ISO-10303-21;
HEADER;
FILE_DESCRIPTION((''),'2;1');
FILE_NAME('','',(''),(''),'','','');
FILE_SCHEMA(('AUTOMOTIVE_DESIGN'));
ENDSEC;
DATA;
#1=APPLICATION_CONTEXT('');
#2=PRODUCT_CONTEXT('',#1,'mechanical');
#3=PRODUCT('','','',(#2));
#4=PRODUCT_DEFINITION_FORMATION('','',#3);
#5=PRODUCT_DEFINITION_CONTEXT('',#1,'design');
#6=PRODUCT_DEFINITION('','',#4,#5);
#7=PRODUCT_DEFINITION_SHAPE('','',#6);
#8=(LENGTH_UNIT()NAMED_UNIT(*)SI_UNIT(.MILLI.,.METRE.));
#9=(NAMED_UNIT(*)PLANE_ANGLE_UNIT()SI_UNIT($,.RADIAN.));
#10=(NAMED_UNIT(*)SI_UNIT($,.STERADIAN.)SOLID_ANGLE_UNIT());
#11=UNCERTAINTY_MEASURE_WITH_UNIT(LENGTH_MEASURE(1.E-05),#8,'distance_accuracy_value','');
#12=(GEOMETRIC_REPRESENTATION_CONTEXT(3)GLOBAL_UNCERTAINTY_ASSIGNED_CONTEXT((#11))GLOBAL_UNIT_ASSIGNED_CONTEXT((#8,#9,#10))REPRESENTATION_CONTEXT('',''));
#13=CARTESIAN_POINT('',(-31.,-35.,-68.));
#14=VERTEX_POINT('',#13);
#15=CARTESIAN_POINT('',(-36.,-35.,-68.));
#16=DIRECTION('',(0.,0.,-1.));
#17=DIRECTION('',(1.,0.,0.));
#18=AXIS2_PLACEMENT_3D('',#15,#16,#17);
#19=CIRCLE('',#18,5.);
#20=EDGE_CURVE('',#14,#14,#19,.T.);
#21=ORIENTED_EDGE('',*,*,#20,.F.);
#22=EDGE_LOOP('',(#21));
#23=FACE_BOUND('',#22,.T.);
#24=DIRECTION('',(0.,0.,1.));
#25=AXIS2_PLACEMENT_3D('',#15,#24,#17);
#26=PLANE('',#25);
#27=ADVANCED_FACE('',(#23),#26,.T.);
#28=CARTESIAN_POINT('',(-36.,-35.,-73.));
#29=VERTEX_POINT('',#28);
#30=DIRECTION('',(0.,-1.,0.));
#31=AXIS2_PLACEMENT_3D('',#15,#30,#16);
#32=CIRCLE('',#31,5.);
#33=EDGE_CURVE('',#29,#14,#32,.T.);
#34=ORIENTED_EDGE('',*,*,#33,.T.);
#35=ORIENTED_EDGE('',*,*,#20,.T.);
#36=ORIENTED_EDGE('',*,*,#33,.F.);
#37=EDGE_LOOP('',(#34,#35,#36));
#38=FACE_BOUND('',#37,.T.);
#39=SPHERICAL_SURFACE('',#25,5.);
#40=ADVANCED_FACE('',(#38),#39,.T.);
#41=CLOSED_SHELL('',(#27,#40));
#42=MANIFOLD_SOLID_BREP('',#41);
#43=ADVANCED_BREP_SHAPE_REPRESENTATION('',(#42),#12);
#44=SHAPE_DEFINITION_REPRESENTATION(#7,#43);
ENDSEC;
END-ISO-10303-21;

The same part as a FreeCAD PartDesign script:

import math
import FreeCAD as App
import Part
import Sketcher

V = App.Vector
Q = App.Units.Quantity


def add_polygon(sketch, points):
    """Adds a closed chain of lines whose ends are joined by coincident constraints."""
    first, n = sketch.GeometryCount, len(points)
    for a, b in zip(points, points[1:] + points[:1]):
        sketch.addGeometry(Part.LineSegment(App.Vector(*a, 0), App.Vector(*b, 0)), False)
    for i in range(n):
        sketch.addConstraint(Sketcher.Constraint("Coincident", first + i, 2, first + (i + 1) % n, 1))

doc = App.newDocument("Part")
body = doc.addObject("PartDesign::Body", "Body")

sketch1 = doc.addObject("Sketcher::SketchObject", "Sketch")
body.addObject(sketch1)
sketch1.AttachmentSupport = (doc.XY_Plane, [""])
sketch1.MapMode = "FlatFace"
add_polygon(sketch1, [(-5, 5), (-5, -5), (5, -5), (5, 5)])
sketch1.addConstraint([
    Sketcher.Constraint("Vertical", 0),
    Sketcher.Constraint("Horizontal", 1),
    Sketcher.Constraint("Vertical", 2),
    Sketcher.Constraint("Horizontal", 3),
    Sketcher.Constraint("Symmetric", 0, 2, 2, 2, -1, 1),
    Sketcher.Constraint("Equal", 3, 0),
    Sketcher.Constraint("DistanceX", 1, 1, 1, 2, Q("10 mm")),
])
pad1 = doc.addObject("PartDesign::Pad", "Pad")
body.addObject(pad1)
pad1.Profile = sketch1
pad1.Length = 10
body2 = doc.addObject("PartDesign::Body", "Body001")

sketch2 = doc.addObject("Sketcher::SketchObject", "Sketch001")
body2.addObject(sketch2)
sketch2.AttachmentSupport = (doc.getObject("XZ_Plane001"), [""])
sketch2.MapMode = "FlatFace"
sketch2.addGeometry([
    Part.ArcOfCircle(Part.Circle(V(0, 0, 0), V(0, 0, 1), 5), math.radians(-90), math.radians(90)),
    Part.LineSegment(V(0, 5, 0), V(0, -5, 0)),
], False)
sketch2.addConstraint([
    Sketcher.Constraint("Coincident", 0, 1, 1, 2),
    Sketcher.Constraint("Coincident", 1, 1, 0, 2),
    Sketcher.Constraint("Vertical", 1),
    Sketcher.Constraint("Coincident", 0, 3, -1, 1),
    Sketcher.Constraint("PointOnObject", 0, 1, -2),
    Sketcher.Constraint("Radius", 0, Q("5 mm")),
])
revolution = doc.addObject("PartDesign::Revolution", "Revolution")
body2.addObject(revolution)
revolution.Profile = sketch2
revolution.ReferenceAxis = (sketch2, ["V_Axis"])
revolution.Angle = 360
doc.recompute()

boolean = doc.addObject("PartDesign::Boolean", "Boolean")
body2.addObject(boolean)
boolean.Type = "Cut"
boolean.addObjects([body])
body3 = doc.addObject("PartDesign::Body", "Body002")
doc.recompute()

body2.Placement = App.Placement(V(-36, -35, -68), App.Rotation(V(0, 0, 1), 0))
boolean2 = doc.addObject("PartDesign::Boolean", "Boolean001")
body3.addObject(boolean2)
boolean2.Type = "Fuse"
boolean2.addObjects([body2])

doc.recompute()
